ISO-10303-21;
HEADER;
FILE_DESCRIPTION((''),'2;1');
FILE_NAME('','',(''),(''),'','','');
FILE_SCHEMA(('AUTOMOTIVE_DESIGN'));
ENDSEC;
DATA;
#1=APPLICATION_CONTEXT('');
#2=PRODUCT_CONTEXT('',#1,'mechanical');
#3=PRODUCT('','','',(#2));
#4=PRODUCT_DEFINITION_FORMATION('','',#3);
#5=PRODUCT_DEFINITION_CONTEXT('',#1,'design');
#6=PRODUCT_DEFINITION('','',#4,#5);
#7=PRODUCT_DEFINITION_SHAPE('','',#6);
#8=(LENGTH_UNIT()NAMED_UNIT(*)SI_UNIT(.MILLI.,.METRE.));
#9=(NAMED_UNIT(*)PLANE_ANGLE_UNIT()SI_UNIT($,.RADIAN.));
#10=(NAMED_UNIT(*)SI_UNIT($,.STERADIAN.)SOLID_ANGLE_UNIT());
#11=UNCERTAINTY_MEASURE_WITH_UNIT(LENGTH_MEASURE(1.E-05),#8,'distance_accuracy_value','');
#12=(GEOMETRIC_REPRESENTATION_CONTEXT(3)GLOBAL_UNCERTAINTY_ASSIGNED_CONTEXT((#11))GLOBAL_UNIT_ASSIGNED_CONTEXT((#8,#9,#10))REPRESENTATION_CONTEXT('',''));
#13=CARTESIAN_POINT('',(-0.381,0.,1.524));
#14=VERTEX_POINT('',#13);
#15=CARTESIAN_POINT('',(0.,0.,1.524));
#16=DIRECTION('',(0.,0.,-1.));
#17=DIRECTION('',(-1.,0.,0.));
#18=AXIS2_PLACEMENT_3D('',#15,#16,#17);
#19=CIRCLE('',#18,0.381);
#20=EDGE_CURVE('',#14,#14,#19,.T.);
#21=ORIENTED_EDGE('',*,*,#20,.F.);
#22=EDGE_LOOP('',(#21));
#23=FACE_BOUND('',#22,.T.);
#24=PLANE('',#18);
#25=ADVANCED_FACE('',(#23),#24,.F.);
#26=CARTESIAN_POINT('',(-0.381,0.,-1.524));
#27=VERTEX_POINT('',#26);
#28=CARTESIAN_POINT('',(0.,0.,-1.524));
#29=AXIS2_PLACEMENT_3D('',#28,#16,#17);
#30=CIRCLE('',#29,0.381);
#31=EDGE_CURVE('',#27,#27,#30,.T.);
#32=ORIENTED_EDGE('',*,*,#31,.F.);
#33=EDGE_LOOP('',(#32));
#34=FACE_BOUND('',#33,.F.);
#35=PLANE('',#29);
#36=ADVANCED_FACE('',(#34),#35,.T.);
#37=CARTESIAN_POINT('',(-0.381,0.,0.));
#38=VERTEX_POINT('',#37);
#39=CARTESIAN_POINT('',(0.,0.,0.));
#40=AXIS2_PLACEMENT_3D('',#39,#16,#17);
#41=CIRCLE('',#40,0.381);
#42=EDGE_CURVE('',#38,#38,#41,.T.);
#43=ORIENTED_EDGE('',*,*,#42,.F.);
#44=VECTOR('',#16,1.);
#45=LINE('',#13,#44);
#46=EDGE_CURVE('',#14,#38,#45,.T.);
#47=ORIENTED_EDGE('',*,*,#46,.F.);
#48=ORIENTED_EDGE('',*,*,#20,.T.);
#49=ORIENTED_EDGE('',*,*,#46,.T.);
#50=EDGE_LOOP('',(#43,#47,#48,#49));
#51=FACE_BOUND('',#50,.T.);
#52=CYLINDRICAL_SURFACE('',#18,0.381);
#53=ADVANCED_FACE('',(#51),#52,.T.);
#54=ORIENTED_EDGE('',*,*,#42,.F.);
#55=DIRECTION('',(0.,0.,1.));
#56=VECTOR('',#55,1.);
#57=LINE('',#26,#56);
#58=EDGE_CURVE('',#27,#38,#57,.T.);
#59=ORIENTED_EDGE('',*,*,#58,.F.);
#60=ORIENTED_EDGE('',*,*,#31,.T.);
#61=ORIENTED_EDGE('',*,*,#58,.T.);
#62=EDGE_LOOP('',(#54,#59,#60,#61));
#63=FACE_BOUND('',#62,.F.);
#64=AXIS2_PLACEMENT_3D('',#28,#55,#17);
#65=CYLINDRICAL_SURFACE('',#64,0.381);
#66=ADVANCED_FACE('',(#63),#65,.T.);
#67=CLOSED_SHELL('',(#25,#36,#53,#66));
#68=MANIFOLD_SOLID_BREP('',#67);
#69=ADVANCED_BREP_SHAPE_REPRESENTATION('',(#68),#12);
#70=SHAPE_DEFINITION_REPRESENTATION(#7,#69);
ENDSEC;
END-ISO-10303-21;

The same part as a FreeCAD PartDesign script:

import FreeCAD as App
import Part
import Sketcher
Q = App.Units.Quantity

doc = App.newDocument("Part")
params = doc.addObject("Spreadsheet::Sheet", "Params")
for row, (alias, value) in enumerate([
    ("sketch1_width", "0.015 in"),
    ("revolution_angle", "360 deg"),
], start=1):
    params.set(f"A{row}", alias)
    params.set(f"B{row}", "=" + value)
    params.setAlias(f"B{row}", alias)

body = doc.addObject("PartDesign::Body", "Body")

sketch1 = doc.addObject("Sketcher::SketchObject", "Sketch")
body.addObject(sketch1)
sketch1.AttachmentSupport = (doc.XZ_Plane, [""])
sketch1.MapMode = "FlatFace"
sketch1.addGeometry(Part.LineSegment(App.Vector(0, 1.52, 0), App.Vector(0, -1.52, 0)), False)
sketch1.addGeometry(Part.LineSegment(App.Vector(0, -1.52, 0), App.Vector(-0.38, -1.52, 0)), False)
sketch1.addGeometry(Part.LineSegment(App.Vector(-0.38, -1.52, 0), App.Vector(-0.38, 1.52, 0)), False)
sketch1.addGeometry(Part.LineSegment(App.Vector(-0.38, 1.52, 0), App.Vector(0, 1.52, 0)), False)
sketch1.addConstraint(Sketcher.Constraint("Coincident", 0, 2, 1, 1))
sketch1.addConstraint(Sketcher.Constraint("Coincident", 1, 2, 2, 1))
sketch1.addConstraint(Sketcher.Constraint("Coincident", 2, 2, 3, 1))
sketch1.addConstraint(Sketcher.Constraint("Coincident", 3, 2, 0, 1))
sketch1.addConstraint(Sketcher.Constraint("Vertical", 0))
sketch1.addConstraint(Sketcher.Constraint("Horizontal", 1))
sketch1.addConstraint(Sketcher.Constraint("Vertical", 2))
sketch1.addConstraint(Sketcher.Constraint("Horizontal", 3))
sketch1.addConstraint(Sketcher.Constraint("Symmetric", 0, 2, 3, 2, -1, 1))
sketch1.addConstraint(Sketcher.Constraint("DistanceX", 1, 2, 1, 1, Q("0.015 in")))
sketch1.addConstraint(Sketcher.Constraint("DistanceY", 0, 2, -1, 1, Q("0.06 in")))
sketch1.setExpression("Constraints[9]", "Params.sketch1_width")
revolution = doc.addObject("PartDesign::Revolution", "Revolution")
body.addObject(revolution)
revolution.Profile = sketch1
revolution.ReferenceAxis = (sketch1, ["V_Axis"])
revolution.setExpression("Angle", "Params.revolution_angle")

doc.recompute()
